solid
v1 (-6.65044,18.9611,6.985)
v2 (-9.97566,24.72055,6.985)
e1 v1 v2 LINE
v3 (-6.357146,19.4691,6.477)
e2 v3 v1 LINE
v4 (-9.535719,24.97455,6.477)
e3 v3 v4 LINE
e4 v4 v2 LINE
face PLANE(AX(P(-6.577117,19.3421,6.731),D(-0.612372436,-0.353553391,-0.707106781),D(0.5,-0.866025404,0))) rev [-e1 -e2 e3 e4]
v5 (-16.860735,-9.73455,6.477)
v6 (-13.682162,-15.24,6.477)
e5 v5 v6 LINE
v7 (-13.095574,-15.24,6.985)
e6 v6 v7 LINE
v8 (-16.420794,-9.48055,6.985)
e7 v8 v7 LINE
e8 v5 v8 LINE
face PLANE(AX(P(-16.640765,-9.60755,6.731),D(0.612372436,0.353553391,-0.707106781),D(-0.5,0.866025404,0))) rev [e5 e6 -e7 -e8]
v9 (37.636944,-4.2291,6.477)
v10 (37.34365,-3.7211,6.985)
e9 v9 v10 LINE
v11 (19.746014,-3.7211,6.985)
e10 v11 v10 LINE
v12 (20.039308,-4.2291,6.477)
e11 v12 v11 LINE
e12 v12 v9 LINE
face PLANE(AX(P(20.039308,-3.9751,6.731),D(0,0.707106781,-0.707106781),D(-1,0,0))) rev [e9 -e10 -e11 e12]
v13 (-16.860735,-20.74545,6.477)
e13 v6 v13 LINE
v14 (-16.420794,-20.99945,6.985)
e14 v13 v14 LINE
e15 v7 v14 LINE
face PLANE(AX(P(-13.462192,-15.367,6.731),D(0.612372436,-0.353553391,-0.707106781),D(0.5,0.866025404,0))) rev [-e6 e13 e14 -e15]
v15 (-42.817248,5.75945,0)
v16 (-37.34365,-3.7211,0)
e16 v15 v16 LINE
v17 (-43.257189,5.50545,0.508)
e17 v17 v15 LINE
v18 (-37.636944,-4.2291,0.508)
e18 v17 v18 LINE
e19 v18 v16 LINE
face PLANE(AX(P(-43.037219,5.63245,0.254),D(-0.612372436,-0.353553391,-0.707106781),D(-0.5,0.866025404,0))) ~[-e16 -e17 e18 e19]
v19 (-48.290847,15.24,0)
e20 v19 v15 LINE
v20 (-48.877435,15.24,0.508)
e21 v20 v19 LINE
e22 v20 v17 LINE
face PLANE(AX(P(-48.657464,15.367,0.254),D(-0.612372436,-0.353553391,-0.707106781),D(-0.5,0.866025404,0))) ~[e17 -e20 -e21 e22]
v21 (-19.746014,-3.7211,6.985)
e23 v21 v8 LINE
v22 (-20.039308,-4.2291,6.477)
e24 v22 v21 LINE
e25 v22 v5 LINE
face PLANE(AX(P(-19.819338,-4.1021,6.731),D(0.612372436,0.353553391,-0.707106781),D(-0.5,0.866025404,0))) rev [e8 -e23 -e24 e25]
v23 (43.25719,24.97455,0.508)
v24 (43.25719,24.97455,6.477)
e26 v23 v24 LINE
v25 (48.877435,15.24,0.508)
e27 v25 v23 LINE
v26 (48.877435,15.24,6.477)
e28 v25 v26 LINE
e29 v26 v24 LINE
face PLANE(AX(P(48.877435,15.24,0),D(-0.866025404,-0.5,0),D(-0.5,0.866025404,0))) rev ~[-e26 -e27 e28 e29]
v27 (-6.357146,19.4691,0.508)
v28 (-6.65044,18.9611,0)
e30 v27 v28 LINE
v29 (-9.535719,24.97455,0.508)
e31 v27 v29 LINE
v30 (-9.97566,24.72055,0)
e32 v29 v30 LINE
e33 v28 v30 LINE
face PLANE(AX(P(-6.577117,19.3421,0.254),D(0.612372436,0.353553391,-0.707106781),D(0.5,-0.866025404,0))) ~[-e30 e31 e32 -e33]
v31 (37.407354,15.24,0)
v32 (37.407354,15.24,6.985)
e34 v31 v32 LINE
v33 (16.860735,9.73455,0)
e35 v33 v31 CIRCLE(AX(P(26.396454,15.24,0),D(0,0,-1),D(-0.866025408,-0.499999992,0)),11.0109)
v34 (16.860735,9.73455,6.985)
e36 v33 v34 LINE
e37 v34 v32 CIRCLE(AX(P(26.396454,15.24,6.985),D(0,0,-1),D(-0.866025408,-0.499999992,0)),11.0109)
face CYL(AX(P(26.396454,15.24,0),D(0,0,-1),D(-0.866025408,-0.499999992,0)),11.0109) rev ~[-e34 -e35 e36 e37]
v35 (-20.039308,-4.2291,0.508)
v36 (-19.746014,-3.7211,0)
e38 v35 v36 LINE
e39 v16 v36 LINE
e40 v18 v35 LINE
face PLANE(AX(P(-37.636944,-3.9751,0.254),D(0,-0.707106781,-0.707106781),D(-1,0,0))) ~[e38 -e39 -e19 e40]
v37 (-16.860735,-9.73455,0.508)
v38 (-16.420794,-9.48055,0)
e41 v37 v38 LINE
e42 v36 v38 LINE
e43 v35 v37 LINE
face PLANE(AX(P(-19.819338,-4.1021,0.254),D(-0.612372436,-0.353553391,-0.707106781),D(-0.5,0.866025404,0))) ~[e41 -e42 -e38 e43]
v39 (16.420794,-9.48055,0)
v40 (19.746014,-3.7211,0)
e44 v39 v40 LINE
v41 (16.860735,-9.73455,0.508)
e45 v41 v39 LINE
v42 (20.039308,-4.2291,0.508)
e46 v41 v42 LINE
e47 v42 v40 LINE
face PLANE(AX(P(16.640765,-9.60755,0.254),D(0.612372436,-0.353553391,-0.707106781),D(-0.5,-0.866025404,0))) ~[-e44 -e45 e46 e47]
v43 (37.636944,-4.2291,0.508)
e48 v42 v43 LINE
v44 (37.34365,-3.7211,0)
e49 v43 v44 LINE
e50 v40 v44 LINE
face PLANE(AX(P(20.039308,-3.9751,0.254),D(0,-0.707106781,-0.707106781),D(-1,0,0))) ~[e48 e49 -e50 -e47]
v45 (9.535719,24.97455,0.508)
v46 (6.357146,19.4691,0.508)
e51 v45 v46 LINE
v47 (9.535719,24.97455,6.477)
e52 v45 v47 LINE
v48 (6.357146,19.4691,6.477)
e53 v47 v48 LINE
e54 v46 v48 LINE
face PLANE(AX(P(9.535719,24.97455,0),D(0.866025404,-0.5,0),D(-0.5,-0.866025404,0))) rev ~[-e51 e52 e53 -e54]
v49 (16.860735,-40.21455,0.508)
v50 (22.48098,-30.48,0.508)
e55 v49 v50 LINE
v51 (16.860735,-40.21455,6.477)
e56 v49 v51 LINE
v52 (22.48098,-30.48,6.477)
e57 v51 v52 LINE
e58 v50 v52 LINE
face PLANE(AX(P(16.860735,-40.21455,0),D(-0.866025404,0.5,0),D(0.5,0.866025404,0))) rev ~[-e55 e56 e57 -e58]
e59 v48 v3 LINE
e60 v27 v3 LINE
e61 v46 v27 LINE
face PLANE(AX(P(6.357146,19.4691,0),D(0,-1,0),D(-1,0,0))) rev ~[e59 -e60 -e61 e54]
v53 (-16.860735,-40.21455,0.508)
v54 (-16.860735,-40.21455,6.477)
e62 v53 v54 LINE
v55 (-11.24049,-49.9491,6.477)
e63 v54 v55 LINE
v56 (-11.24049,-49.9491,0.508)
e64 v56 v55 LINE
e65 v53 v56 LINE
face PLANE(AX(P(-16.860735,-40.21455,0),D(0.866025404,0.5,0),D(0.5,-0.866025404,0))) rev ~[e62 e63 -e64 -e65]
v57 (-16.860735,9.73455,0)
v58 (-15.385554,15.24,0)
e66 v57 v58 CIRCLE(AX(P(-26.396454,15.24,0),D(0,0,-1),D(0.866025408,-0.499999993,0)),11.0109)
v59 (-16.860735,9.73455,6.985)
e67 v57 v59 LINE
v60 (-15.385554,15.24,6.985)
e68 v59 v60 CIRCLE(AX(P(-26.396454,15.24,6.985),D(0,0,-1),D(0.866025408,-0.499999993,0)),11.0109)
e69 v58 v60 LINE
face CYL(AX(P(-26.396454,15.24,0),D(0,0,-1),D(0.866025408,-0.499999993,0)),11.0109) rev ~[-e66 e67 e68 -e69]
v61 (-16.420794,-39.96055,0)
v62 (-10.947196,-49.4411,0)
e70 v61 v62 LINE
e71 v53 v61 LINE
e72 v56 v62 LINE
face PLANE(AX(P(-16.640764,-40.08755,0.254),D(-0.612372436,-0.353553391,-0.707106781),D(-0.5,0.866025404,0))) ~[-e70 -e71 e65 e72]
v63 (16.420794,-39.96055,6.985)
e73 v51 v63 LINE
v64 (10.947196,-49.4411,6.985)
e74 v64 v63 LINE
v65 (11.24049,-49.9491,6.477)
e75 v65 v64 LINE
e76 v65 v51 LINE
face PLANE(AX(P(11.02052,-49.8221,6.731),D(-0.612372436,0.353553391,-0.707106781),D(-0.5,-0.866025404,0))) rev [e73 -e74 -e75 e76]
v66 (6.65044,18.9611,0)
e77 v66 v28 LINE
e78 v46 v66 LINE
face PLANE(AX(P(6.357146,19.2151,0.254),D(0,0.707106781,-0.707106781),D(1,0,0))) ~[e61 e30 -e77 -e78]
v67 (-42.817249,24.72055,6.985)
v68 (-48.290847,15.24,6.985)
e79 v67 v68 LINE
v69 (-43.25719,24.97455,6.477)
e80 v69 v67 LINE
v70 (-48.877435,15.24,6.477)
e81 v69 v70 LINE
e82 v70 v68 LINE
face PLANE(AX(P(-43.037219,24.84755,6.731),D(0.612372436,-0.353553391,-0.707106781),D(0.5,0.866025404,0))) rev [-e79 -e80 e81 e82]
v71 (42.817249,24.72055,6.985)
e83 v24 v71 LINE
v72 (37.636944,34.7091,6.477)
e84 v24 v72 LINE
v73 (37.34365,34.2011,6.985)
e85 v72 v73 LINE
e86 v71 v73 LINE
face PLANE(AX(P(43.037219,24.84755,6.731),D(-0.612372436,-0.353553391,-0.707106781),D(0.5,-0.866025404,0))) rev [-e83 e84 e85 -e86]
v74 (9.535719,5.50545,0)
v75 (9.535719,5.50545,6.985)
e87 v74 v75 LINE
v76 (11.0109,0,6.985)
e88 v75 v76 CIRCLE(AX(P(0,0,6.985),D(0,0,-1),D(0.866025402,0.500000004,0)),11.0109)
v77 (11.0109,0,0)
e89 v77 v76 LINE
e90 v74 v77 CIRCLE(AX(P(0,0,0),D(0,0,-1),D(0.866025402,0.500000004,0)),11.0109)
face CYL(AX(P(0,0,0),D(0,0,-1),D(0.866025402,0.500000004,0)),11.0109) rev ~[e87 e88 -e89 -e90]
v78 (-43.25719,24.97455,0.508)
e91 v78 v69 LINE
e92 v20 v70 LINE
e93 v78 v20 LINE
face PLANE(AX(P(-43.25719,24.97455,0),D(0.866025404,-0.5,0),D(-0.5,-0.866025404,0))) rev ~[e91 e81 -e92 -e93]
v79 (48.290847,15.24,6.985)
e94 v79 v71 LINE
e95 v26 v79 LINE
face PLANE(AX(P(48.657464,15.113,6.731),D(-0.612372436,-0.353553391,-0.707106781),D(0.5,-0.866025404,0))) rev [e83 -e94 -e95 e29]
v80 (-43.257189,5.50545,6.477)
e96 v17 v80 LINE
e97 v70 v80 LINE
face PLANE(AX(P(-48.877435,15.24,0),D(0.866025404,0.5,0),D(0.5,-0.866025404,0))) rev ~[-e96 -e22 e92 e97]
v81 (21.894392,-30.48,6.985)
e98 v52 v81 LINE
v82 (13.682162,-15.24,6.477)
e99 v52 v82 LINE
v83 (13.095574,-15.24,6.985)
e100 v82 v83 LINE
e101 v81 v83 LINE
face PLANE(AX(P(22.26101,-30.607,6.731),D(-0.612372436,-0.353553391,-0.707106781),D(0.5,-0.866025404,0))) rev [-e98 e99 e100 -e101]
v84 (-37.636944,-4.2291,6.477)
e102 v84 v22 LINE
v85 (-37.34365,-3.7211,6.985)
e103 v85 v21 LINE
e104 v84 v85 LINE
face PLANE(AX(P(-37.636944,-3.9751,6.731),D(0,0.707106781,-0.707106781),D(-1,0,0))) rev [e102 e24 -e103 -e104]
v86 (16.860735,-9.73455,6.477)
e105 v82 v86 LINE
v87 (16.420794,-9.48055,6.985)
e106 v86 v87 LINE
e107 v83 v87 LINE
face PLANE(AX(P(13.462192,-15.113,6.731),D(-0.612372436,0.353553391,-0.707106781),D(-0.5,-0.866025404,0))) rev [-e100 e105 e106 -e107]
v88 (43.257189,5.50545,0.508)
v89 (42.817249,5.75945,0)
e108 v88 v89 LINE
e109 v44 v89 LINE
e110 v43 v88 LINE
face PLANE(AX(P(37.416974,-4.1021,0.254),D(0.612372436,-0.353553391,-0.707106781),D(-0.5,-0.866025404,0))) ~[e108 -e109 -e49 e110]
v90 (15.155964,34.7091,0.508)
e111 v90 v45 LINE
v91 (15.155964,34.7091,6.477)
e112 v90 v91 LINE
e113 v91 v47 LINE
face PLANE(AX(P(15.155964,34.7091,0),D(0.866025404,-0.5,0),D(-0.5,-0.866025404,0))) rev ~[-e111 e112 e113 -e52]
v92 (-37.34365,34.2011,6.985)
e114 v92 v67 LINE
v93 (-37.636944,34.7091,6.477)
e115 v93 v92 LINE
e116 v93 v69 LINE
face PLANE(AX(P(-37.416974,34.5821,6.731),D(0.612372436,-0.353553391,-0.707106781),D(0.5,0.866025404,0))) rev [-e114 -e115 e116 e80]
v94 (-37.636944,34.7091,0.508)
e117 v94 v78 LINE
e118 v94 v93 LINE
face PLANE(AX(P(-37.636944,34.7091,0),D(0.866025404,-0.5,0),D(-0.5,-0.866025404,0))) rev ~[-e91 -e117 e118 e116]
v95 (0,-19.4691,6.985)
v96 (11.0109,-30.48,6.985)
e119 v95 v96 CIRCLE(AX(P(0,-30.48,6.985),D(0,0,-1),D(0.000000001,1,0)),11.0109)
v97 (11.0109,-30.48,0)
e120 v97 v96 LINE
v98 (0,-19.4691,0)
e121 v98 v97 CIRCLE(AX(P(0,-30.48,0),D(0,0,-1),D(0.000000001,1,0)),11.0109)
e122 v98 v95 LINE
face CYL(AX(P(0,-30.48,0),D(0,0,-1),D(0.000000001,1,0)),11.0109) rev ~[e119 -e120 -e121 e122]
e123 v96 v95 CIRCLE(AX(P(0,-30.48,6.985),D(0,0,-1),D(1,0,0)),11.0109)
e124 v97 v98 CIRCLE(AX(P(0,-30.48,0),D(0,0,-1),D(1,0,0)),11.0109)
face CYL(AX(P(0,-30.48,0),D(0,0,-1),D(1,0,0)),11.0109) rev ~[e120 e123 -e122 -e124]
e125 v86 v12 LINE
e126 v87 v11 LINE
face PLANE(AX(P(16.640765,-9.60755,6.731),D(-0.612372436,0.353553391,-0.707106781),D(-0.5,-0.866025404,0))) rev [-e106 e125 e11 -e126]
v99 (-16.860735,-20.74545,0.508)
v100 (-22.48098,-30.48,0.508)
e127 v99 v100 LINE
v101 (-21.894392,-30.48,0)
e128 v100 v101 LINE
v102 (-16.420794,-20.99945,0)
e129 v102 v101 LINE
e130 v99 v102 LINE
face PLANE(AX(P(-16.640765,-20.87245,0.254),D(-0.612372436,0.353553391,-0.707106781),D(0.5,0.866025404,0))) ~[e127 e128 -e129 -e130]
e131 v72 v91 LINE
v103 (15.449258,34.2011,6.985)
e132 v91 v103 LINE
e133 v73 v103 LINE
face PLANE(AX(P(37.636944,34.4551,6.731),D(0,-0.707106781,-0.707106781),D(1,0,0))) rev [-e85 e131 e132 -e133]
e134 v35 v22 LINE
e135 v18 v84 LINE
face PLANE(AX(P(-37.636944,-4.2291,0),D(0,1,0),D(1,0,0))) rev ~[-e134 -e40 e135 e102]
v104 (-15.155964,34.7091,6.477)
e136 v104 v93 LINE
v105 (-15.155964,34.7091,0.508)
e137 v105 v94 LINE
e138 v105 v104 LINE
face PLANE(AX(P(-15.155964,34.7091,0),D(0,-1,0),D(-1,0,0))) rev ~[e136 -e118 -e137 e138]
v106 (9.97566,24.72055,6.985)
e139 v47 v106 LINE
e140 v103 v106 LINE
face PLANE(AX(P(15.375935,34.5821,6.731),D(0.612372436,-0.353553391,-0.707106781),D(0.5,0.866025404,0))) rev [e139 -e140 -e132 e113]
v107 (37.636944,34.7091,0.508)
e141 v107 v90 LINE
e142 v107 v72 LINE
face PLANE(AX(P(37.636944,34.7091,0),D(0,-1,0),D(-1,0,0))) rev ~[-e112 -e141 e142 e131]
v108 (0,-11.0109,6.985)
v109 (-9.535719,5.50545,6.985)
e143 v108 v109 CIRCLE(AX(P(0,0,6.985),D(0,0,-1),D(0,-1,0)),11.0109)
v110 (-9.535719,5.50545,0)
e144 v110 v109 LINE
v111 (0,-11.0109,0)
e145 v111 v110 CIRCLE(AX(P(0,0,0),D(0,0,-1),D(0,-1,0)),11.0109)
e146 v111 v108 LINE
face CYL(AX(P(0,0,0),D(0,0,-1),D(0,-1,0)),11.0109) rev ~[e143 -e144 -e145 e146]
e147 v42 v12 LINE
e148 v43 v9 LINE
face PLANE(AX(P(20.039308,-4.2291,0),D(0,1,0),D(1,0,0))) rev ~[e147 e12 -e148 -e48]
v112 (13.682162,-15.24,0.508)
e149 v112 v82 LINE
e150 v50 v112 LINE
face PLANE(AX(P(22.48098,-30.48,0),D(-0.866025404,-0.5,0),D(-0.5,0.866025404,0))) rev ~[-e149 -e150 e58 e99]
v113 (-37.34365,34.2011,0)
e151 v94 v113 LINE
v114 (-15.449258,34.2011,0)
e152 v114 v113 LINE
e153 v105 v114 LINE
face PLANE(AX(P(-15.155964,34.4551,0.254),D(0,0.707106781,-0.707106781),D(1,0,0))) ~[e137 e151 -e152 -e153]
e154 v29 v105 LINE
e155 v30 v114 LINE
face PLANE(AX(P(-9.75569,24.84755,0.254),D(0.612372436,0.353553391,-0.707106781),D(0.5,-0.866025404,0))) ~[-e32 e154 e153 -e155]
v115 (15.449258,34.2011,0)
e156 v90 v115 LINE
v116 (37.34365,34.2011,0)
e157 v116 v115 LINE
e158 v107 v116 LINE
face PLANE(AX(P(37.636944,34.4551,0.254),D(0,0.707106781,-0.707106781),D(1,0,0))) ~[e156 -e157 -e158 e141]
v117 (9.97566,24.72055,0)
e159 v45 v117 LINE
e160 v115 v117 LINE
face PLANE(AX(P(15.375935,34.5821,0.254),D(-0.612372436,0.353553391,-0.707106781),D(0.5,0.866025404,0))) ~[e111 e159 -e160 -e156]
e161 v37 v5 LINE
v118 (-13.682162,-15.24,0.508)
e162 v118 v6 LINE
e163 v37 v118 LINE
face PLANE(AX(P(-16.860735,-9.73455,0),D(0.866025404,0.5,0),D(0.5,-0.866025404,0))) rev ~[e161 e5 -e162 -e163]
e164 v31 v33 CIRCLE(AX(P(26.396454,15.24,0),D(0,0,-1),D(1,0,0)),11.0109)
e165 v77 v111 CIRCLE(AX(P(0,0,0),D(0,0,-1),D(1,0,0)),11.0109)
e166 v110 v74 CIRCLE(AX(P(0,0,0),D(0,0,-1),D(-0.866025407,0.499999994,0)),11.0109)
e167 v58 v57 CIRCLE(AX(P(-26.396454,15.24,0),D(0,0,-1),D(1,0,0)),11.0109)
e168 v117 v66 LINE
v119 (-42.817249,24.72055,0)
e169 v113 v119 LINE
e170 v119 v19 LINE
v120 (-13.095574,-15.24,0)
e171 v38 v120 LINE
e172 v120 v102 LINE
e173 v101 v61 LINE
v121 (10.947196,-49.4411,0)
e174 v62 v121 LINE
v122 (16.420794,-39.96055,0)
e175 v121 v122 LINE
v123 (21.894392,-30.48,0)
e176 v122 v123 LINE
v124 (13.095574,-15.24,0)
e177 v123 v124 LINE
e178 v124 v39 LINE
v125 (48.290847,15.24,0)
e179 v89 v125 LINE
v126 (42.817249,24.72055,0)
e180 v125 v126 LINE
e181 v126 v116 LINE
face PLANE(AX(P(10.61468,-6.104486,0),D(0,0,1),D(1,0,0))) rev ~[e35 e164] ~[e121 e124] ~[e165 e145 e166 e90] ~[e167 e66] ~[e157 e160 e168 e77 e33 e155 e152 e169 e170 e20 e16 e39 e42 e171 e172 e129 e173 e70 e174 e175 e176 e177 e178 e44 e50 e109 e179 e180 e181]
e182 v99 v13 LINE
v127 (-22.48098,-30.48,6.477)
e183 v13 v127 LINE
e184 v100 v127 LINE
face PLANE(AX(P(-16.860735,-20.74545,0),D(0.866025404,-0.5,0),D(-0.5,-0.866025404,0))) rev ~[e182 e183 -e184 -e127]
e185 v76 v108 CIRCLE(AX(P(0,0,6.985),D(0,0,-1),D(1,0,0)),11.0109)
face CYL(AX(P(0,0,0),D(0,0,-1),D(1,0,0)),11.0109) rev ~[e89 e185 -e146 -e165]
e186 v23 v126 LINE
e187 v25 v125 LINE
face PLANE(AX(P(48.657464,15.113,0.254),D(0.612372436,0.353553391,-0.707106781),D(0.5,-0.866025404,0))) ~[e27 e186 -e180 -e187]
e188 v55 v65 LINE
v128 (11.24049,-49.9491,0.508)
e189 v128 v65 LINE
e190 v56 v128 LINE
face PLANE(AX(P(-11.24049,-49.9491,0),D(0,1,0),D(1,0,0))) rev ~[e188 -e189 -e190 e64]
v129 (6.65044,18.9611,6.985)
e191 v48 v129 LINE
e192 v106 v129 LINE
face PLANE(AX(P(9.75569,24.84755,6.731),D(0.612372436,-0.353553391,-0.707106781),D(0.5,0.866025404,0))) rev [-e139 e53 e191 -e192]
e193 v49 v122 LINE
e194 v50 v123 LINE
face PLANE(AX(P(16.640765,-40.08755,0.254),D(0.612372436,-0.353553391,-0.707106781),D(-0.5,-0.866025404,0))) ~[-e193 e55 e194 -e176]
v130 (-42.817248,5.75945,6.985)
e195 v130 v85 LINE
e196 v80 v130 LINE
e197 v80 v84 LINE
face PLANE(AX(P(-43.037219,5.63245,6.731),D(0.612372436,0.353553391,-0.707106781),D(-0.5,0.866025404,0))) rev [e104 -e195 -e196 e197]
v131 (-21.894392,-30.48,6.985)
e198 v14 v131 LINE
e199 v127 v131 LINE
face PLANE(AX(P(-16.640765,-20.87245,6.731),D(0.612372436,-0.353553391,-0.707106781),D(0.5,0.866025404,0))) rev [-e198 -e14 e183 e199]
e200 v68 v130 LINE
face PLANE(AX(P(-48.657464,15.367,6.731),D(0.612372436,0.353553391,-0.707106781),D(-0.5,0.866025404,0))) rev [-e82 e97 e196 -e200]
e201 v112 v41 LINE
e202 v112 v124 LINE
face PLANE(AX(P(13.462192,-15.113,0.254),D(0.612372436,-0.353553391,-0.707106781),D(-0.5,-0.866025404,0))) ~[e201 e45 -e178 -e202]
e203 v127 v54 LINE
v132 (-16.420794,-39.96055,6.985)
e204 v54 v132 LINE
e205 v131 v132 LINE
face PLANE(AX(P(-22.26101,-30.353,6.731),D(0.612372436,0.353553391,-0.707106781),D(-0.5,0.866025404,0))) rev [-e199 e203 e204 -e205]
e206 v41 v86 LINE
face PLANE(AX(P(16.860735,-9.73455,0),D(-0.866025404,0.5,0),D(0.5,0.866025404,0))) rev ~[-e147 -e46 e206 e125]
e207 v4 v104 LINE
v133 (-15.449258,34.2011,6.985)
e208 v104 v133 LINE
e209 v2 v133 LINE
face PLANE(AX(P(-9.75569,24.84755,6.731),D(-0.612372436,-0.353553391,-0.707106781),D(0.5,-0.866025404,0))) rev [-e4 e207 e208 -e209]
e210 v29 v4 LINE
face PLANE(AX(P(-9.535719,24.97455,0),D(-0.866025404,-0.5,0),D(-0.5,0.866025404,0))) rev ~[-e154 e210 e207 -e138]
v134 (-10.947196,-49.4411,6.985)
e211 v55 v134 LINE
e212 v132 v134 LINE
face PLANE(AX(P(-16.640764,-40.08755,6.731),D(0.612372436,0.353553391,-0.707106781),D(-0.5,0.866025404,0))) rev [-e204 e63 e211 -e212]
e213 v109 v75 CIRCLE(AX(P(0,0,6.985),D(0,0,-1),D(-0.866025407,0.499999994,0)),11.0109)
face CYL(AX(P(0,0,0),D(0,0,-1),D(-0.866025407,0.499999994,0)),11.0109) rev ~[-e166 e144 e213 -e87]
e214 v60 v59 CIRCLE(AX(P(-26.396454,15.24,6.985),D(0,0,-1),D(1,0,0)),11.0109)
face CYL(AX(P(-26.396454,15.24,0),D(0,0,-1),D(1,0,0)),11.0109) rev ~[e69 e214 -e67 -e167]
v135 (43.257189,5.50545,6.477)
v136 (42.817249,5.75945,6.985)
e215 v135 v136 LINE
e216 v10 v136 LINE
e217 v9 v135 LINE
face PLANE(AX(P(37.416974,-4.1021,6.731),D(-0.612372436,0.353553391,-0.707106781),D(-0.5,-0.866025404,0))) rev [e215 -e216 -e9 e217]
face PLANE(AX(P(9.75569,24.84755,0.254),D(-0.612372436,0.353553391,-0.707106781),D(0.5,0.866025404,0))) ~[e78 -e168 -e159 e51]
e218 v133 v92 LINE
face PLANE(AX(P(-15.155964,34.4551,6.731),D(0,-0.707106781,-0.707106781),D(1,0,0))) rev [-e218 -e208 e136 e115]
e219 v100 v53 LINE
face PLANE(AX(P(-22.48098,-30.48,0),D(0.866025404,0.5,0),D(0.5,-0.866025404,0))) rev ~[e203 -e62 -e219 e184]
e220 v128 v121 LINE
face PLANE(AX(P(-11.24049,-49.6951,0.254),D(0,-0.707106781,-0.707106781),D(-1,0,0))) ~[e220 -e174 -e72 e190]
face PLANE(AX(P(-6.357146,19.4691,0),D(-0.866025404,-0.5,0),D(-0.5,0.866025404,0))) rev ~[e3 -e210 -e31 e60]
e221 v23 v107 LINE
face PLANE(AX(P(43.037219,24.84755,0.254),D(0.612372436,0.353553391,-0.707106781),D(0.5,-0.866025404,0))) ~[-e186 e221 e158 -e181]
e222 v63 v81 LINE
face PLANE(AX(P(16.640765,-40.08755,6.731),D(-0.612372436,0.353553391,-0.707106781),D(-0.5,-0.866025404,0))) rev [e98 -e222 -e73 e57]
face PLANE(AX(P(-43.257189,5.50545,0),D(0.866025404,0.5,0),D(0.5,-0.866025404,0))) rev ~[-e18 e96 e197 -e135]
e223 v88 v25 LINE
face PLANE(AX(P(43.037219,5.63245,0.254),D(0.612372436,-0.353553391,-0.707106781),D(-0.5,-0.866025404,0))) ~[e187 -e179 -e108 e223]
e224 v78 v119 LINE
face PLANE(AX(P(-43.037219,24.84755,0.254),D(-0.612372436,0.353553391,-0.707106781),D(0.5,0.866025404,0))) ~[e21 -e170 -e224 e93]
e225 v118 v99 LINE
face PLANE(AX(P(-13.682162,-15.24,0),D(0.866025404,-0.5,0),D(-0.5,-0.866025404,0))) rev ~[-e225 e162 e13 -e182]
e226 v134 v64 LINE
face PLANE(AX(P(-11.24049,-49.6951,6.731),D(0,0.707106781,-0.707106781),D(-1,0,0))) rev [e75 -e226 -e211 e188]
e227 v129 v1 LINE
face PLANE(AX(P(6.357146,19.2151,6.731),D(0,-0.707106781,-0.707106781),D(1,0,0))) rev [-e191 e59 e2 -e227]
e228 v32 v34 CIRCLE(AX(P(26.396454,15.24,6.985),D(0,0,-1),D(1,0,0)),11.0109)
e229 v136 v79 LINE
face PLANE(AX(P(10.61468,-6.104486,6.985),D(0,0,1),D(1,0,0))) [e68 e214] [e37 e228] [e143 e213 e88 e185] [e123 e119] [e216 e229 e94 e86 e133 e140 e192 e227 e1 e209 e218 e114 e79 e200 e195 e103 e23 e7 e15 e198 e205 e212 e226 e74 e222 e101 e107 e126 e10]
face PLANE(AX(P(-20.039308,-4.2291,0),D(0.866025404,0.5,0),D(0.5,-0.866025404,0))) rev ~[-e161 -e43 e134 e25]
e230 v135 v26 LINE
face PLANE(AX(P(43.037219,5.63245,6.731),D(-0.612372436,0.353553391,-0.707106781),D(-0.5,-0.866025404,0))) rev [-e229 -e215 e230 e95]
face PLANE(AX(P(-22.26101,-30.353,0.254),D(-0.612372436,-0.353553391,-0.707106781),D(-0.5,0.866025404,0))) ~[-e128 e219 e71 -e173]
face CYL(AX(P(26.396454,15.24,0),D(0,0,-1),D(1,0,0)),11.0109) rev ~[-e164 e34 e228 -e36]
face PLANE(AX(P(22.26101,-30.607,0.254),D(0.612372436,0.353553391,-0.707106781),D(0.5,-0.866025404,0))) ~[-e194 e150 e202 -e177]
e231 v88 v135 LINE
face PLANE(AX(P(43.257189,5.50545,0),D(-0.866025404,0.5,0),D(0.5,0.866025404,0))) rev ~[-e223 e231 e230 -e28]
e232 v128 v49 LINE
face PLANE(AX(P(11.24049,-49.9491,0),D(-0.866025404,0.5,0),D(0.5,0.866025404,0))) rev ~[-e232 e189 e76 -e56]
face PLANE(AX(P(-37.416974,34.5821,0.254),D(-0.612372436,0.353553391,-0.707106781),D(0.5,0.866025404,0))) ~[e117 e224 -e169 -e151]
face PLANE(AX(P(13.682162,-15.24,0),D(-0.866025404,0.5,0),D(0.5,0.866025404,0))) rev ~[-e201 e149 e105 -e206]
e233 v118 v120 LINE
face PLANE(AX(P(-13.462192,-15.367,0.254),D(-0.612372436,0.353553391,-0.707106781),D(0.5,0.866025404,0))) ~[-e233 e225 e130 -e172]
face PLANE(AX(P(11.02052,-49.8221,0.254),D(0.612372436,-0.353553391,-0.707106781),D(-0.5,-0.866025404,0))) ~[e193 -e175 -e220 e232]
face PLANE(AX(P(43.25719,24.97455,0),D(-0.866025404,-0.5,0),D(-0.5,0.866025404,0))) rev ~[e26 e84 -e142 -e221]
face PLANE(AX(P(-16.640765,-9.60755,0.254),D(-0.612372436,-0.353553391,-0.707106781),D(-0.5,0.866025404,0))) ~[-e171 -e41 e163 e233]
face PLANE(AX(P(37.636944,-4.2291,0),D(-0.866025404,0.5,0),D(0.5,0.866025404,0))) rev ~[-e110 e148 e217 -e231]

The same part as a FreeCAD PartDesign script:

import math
import FreeCAD as App
import Part
import Sketcher

V = App.Vector
Q = App.Units.Quantity


def edges_at(feature, points):
    """Names of the edges that pass closest to the given points."""
    edges = feature.Shape.Edges
    near = lambda p: min(range(len(edges)), key=lambda i: edges[i].distToShape(Part.Vertex(*p))[0])
    return sorted({f"Edge{near(p) + 1}" for p in points})


def add_polygon(sketch, points):
    """Adds a closed chain of lines whose ends are joined by coincident constraints."""
    first, n = sketch.GeometryCount, len(points)
    for a, b in zip(points, points[1:] + points[:1]):
        sketch.addGeometry(Part.LineSegment(App.Vector(*a, 0), App.Vector(*b, 0)), False)
    for i in range(n):
        sketch.addConstraint(Sketcher.Constraint("Coincident", first + i, 2, first + (i + 1) % n, 1))

doc = App.newDocument("Part")
body = doc.addObject("PartDesign::Body", "Body")

sketch1 = body.newObject("Sketcher::SketchObject", "Sketch")
sketch1.AttachmentSupport = (doc.getObject("XY_Plane"), [""])
sketch1.MapMode = "FlatFace"
add_polygon(sketch1, [(6, 19), (-6, 19), (-10, 25), (-15, 35), (-38, 35), (-43, 25), (-49, 15), (-43, 6), (-38, -4), (-20, -4), (-17, -10), (-14, -15), (-17, -21), (-22, -30), (-17, -40), (-11, -50), (11, -50), (17, -40), (22, -30), (14, -15), (17, -10), (20, -4), (38, -4), (43, 6), (49, 15), (43, 25), (38, 35), (15, 35), (10, 25)])
sketch1.addGeometry(Part.ArcOfCircle(Part.Circle(V(0, -30, 0), V(0, 0, 1), 11), math.radians(90), math.radians(360)), False)
sketch1.addGeometry(Part.ArcOfCircle(Part.Circle(V(0, -30, 0), V(0, 0, 1), 11), math.radians(0), math.radians(90)), False)
sketch1.addGeometry(Part.ArcOfCircle(Part.Circle(V(-26, 15, 0), V(0, 0, 1), 11), math.radians(-30), math.radians(0)), False)
sketch1.addGeometry(Part.ArcOfCircle(Part.Circle(V(-26, 15, 0), V(0, 0, 1), 11), math.radians(0), math.radians(330)), False)
sketch1.addGeometry(Part.ArcOfCircle(Part.Circle(V(0, 0, 0), V(0, 0, 1), 11), math.radians(30), math.radians(150)), False)
sketch1.addGeometry(Part.ArcOfCircle(Part.Circle(V(0, 0, 0), V(0, 0, 1), 11), math.radians(0), math.radians(30)), False)
sketch1.addGeometry(Part.ArcOfCircle(Part.Circle(V(0, 0, 0), V(0, 0, 1), 11), math.radians(-90), math.radians(0)), False)
sketch1.addGeometry(Part.ArcOfCircle(Part.Circle(V(0, 0, 0), V(0, 0, 1), 11), math.radians(150), math.radians(270)), False)
sketch1.addGeometry(Part.ArcOfCircle(Part.Circle(V(26, 15, 0), V(0, 0, 1), 11), math.radians(-150), math.radians(0)), False)
sketch1.addGeometry(Part.ArcOfCircle(Part.Circle(V(26, 15, 0), V(0, 0, 1), 11), math.radians(0), math.radians(210)), False)
sketch1.addConstraint([
    Sketcher.Constraint("Tangent", 29, 1, 30, 2),
    Sketcher.Constraint("Coincident", 30, 1, 29, 2),
    Sketcher.Constraint("Tangent", 31, 1, 32, 2),
    Sketcher.Constraint("Coincident", 32, 1, 31, 2),
    Sketcher.Constraint("Tangent", 33, 1, 34, 2),
    Sketcher.Constraint("Tangent", 34, 1, 35, 2),
    Sketcher.Constraint("Tangent", 35, 1, 36, 2),
    Sketcher.Constraint("Tangent", 36, 1, 33, 2),
    Sketcher.Constraint("Tangent", 37, 1, 38, 2),
    Sketcher.Constraint("Coincident", 38, 1, 37, 2),
    Sketcher.Constraint("Horizontal", 0),
    Sketcher.Constraint("Horizontal", 3),
    Sketcher.Constraint("Horizontal", 8),
    Sketcher.Constraint("Horizontal", 15),
    Sketcher.Constraint("Horizontal", 21),
    Sketcher.Constraint("Horizontal", 26),
    Sketcher.Constraint("Coincident", 33, 3, -1, 1),
    Sketcher.Constraint("Equal", 30, 31),
    Sketcher.Constraint("Equal", 32, 33),
    Sketcher.Constraint("Equal", 33, 34),
    Sketcher.Constraint("Equal", 36, 37),
    Sketcher.Constraint("Symmetric", 19, 2, 31, 1, -1, 1),
    Sketcher.Constraint("Symmetric", 9, 2, 37, 1, -1, 1),
    Sketcher.Constraint("Symmetric", 31, 3, 37, 3, -2),
    Sketcher.Constraint("Symmetric", 13, 2, 16, 2, -2),
    Sketcher.Constraint("Symmetric", 12, 2, 17, 2, -2),
    Sketcher.Constraint("Symmetric", 10, 2, 18, 2, -2),
    Sketcher.Constraint("Symmetric", 8, 2, 20, 2, -2),
    Sketcher.Constraint("Symmetric", 6, 2, 22, 2, -2),
    Sketcher.Constraint("Symmetric", 5, 2, 23, 2, -2),
    Sketcher.Constraint("Symmetric", 4, 2, 24, 2, -2),
    Sketcher.Constraint("Symmetric", 3, 2, 25, 2, -2),
    Sketcher.Constraint("Symmetric", 1, 2, 27, 2, -2),
    Sketcher.Constraint("PointOnObject", 29, 3, -2),
    Sketcher.Constraint("PointOnObject", 29, 1, -2),
    Sketcher.Constraint("PointOnObject", 34, 1, -1),
    Sketcher.Constraint("PointOnObject", 35, 1, -2),
    Sketcher.Constraint("Parallel", 1, 2),
    Sketcher.Constraint("Parallel", 4, 5),
    Sketcher.Constraint("Parallel", 2, 6),
    Sketcher.Constraint("Parallel", 6, 7),
    Sketcher.Constraint("Parallel", 7, 9),
    Sketcher.Constraint("Parallel", 9, 10),
    Sketcher.Constraint("Parallel", 5, 11),
    Sketcher.Constraint("Parallel", 11, 12),
    Sketcher.Constraint("Parallel", 10, 13),
    Sketcher.Constraint("Parallel", 13, 14),
    Sketcher.Constraint("Parallel", 12, 16),
    Sketcher.Constraint("Parallel", 16, 17),
    Sketcher.Constraint("Parallel", 20, 22),
    Sketcher.Constraint("Parallel", 23, 27),
    Sketcher.Constraint("Parallel", 27, 28),
    Sketcher.Constraint("Horizontal", 1, 2, 4, 2),
    Sketcher.Constraint("Horizontal", 38, 3, 5, 2),
    Sketcher.Constraint("Horizontal", 30, 3, 12, 2),
    Sketcher.Constraint("Horizontal", 9, 2, 19, 2),
    Sketcher.Constraint("Horizontal", 17, 2, 30, 1),
    Sketcher.Constraint("Horizontal", 23, 2, 32, 1),
    Sketcher.Constraint("Horizontal", 22, 2, 33, 1),
    Sketcher.Constraint("Horizontal", 33, 1, 36, 1),
    Sketcher.Constraint("Horizontal", 32, 1, 38, 1),
    Sketcher.Constraint("Vertical", 4, 2, 6, 2),
    Sketcher.Constraint("Vertical", 3, 2, 7, 2),
    Sketcher.Constraint("Vertical", 9, 2, 11, 2),
    Sketcher.Constraint("Vertical", 11, 2, 13, 2),
    Sketcher.Constraint("Vertical", 27, 2, 33, 1),
    Sketcher.Constraint("Equal", 3, 15),
    Sketcher.Constraint("Equal", 4, 5),
    Sketcher.Constraint("Equal", 1, 9),
    Sketcher.Constraint("Equal", 9, 10),
    Sketcher.Constraint("Equal", 7, 12),
    Sketcher.Constraint("Equal", 13, 14),
    Sketcher.Constraint("Angle", 1, Q("120 deg")),
    Sketcher.Constraint("DistanceY", 29, 3, -1, 1, Q("1.2 in")),
    Sketcher.Constraint("DistanceY", -1, 1, 31, 3, Q("0.6 in")),
    Sketcher.Constraint("Radius", 29, Q("0.4335 in")),
    Sketcher.Constraint("DistanceY", -1, 1, 0, 2, Q("0.7665 in")),
    Sketcher.Constraint("DistanceX", 3, 2, 3, 1, 22.48098),
])
pad1 = body.newObject("PartDesign::Pad", "Pad")
pad1.Profile = sketch1
pad1.Length = Q("0.275 in")
doc.recompute()

chamfer = body.newObject("PartDesign::Chamfer", "Chamfer")
chamfer.Base = (pad1, edges_at(pad1, [
    (-40.447, 29.842, 6.985),
    (-26.396, 34.709, 6.985),
    (-12.346, 29.842, 6.985),
    (0, 19.469, 6.985),
    (12.346, 29.842, 6.985),
    (26.396, 34.709, 6.985),
    (40.447, 29.842, 6.985),
    (46.067, 10.373, 6.985),
    (28.838, -4.229, 6.985),
    (15.271, -12.487, 6.985),
    (18.082, -22.86, 6.985),
    (14.051, -45.082, 6.985),
    (0, -49.949, 6.985),
    (-19.671, -35.347, 6.985),
    (-19.671, -25.613, 6.985),
    (-18.45, -6.982, 6.985),
    (-28.838, -4.229, 6.985),
    (-46.067, 10.373, 6.985),
    (40.447, 29.842, 0),
    (26.396, 34.709, 0),
    (12.346, 29.842, 0),
    (0, 19.469, 0),
    (46.067, 10.373, 0),
    (28.838, -4.229, 0),
    (15.271, -12.487, 0),
    (18.082, -22.86, 0),
    (14.051, -45.082, 0),
    (0, -49.949, 0),
    (-19.671, -35.347, 0),
    (-19.671, -25.613, 0),
    (-18.45, -6.982, 0),
    (-28.838, -4.229, 0),
    (-46.067, 10.373, 0),
    (-40.447, 29.842, 0),
    (-26.396, 34.709, 0),
    (-12.346, 29.842, 0),
]))
chamfer.Size = Q("0.02 in")

doc.recompute()
